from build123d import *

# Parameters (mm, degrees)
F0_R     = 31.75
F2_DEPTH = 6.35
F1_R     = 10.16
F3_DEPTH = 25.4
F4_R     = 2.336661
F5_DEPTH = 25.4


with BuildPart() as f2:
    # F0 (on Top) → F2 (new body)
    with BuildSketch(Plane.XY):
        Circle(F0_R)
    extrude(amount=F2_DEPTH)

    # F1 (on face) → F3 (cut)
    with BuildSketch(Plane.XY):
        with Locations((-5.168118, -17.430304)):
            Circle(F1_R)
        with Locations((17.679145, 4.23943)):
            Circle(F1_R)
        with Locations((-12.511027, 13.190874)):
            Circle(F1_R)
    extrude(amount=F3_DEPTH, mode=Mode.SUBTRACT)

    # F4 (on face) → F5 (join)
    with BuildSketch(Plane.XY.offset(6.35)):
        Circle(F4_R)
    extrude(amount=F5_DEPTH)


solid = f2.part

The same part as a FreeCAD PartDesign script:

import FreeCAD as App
import Part
import Sketcher

V = App.Vector
Q = App.Units.Quantity

doc = App.newDocument("Part")
body = doc.addObject("PartDesign::Body", "Body")

# Sketch on XY plane
sketch1 = body.newObject("Sketcher::SketchObject", "Sketch")
sketch1.AttachmentSupport = (doc.getObject("XY_Plane"), [""])
sketch1.MapMode = "FlatFace"
sketch1.addGeometry(Part.Circle(V(0, 0, 0), V(0, 0, 1), 31.75), False)
sketch1.addConstraint(Sketcher.Constraint("Coincident", 0, 3, -1, 1))
sketch1.addConstraint(Sketcher.Constraint("Diameter", 0, Q("2.5 in")))
pad1 = body.newObject("PartDesign::Pad", "Pad")
pad1.Profile = sketch1
pad1.Length = Q("0.25 in")

# Sketch on XY plane
sketch2 = body.newObject("Sketcher::SketchObject", "Sketch001")
sketch2.AttachmentSupport = (doc.getObject("XY_Plane"), [""])
sketch2.MapMode = "FlatFace"
sketch2.addGeometry(Part.Circle(V(-5.168118, -17.430304, 0), V(0, 0, 1), 10.16), False)
sketch2.addGeometry(Part.Circle(V(17.679145, 4.23943, 0), V(0, 0, 1), 10.16), False)
sketch2.addGeometry(Part.Circle(V(-12.511027, 13.190874, 0), V(0, 0, 1), 10.16), False)
sketch2.addConstraint(Sketcher.Constraint("Equal", 0, 1))
sketch2.addConstraint(Sketcher.Constraint("Equal", 1, 2))
sketch2.addConstraint(Sketcher.Constraint("Diameter", 0, Q("0.8 in")))
sketch2.addConstraint(Sketcher.Constraint("DistanceY", -1, 1, 1, 3, Q("4.23943 mm")))
sketch2.addConstraint(Sketcher.Constraint("DistanceX", 2, 3, 1, 3, Q("30.190172 mm")))
sketch2.addConstraint(Sketcher.Constraint("DistanceX", 2, 3, 0, 3, Q("7.342909 mm")))
sketch2.addConstraint(Sketcher.Constraint("DistanceY", 0, 3, 2, 3, Q("30.621178 mm")))
sketch2.addConstraint(Sketcher.Constraint("DistanceX", 0, 3, -1, 1, Q("5.168118 mm")))
sketch2.addConstraint(Sketcher.Constraint("DistanceY", 0, 3, -1, 1, Q("17.430304 mm")))
pocket1 = body.newObject("PartDesign::Pocket", "Pocket")
pocket1.Profile = sketch2
pocket1.Length = Q("1 in")
pocket1.Reversed = True

# Sketch on XY plane
sketch3 = body.newObject("Sketcher::SketchObject", "Sketch002")
sketch3.AttachmentSupport = (doc.getObject("XY_Plane"), [""])
sketch3.MapMode = "FlatFace"
sketch3.AttachmentOffset = App.Placement(V(0, 0, 0.25 * 25.4), App.Rotation())
sketch3.addGeometry(Part.Circle(V(0, 0, 0), V(0, 0, 1), 2.336661), False)
sketch3.addConstraint(Sketcher.Constraint("Coincident", 0, 3, -1, 1))
sketch3.addConstraint(Sketcher.Constraint("Diameter", 0, Q("4.673322 mm")))
pad2 = body.newObject("PartDesign::Pad", "Pad001")
pad2.Profile = sketch3
pad2.Length = Q("1 in")

doc.recompute()
